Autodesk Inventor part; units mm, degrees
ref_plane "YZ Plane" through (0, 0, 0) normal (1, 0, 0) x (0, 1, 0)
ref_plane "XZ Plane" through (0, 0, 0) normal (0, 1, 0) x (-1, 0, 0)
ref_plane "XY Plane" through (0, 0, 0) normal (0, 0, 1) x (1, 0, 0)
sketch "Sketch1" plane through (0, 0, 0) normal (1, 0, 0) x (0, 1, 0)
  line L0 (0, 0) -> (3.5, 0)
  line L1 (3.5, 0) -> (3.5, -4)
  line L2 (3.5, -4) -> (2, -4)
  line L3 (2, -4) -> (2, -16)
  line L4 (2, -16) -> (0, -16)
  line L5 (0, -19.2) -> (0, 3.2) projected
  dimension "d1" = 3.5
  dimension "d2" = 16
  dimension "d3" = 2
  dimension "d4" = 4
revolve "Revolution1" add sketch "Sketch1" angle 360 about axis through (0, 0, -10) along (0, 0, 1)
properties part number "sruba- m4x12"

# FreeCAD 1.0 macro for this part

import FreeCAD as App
import Part
import Sketcher

V = App.Vector
Q = App.Units.Quantity

doc = App.newDocument("Part")
body = doc.addObject("PartDesign::Body", "Body")

# Sketch on YZ plane
sketch1 = body.newObject("Sketcher::SketchObject", "Sketch")
sketch1.AttachmentSupport = (doc.getObject("YZ_Plane"), [""])
sketch1.MapMode = "FlatFace"
sketch1.addGeometry([
    Part.LineSegment(V(3.5, 0, 0), V(0, 0, 0)),  # 0
    Part.LineSegment(V(0, 0, 0), V(0, -16, 0)),  # 1
    Part.LineSegment(V(0, -16, 0), V(2, -16, 0)),  # 2
    Part.LineSegment(V(2, -16, 0), V(2, -4, 0)),  # 3
    Part.LineSegment(V(2, -4, 0), V(3.5, -4, 0)),  # 4
    Part.LineSegment(V(3.5, -4, 0), V(3.5, 0, 0)),  # 5
], False)
sketch1.addConstraint([
    Sketcher.Constraint("Coincident", 0, 2, 1, 1),
    Sketcher.Constraint("Coincident", 1, 2, 2, 1),
    Sketcher.Constraint("Coincident", 2, 2, 3, 1),
    Sketcher.Constraint("Coincident", 3, 2, 4, 1),
    Sketcher.Constraint("Coincident", 4, 2, 5, 1),
    Sketcher.Constraint("Coincident", 5, 2, 0, 1),
    Sketcher.Constraint("Horizontal", 0),
    Sketcher.Constraint("Vertical", 1),
    Sketcher.Constraint("Horizontal", 2),
    Sketcher.Constraint("Vertical", 3),
    Sketcher.Constraint("Horizontal", 4),
    Sketcher.Constraint("Vertical", 5),
    Sketcher.Constraint("Coincident", 0, 2, -1, 1),
    Sketcher.Constraint("DistanceX", 2, 1, 2, 2, Q("2 mm")),
    Sketcher.Constraint("DistanceY", 1, 2, 1, 1, Q("16 mm")),
    Sketcher.Constraint("DistanceY", 5, 1, 5, 2, Q("4 mm")),
    Sketcher.Constraint("DistanceX", 0, 2, 0, 1, Q("3.5 mm")),
])
revolution = body.newObject("PartDesign::Revolution", "Revolution")
revolution.Profile = sketch1
revolution.ReferenceAxis = (sketch1, ["V_Axis"])
revolution.Angle = 360

doc.recompute()
